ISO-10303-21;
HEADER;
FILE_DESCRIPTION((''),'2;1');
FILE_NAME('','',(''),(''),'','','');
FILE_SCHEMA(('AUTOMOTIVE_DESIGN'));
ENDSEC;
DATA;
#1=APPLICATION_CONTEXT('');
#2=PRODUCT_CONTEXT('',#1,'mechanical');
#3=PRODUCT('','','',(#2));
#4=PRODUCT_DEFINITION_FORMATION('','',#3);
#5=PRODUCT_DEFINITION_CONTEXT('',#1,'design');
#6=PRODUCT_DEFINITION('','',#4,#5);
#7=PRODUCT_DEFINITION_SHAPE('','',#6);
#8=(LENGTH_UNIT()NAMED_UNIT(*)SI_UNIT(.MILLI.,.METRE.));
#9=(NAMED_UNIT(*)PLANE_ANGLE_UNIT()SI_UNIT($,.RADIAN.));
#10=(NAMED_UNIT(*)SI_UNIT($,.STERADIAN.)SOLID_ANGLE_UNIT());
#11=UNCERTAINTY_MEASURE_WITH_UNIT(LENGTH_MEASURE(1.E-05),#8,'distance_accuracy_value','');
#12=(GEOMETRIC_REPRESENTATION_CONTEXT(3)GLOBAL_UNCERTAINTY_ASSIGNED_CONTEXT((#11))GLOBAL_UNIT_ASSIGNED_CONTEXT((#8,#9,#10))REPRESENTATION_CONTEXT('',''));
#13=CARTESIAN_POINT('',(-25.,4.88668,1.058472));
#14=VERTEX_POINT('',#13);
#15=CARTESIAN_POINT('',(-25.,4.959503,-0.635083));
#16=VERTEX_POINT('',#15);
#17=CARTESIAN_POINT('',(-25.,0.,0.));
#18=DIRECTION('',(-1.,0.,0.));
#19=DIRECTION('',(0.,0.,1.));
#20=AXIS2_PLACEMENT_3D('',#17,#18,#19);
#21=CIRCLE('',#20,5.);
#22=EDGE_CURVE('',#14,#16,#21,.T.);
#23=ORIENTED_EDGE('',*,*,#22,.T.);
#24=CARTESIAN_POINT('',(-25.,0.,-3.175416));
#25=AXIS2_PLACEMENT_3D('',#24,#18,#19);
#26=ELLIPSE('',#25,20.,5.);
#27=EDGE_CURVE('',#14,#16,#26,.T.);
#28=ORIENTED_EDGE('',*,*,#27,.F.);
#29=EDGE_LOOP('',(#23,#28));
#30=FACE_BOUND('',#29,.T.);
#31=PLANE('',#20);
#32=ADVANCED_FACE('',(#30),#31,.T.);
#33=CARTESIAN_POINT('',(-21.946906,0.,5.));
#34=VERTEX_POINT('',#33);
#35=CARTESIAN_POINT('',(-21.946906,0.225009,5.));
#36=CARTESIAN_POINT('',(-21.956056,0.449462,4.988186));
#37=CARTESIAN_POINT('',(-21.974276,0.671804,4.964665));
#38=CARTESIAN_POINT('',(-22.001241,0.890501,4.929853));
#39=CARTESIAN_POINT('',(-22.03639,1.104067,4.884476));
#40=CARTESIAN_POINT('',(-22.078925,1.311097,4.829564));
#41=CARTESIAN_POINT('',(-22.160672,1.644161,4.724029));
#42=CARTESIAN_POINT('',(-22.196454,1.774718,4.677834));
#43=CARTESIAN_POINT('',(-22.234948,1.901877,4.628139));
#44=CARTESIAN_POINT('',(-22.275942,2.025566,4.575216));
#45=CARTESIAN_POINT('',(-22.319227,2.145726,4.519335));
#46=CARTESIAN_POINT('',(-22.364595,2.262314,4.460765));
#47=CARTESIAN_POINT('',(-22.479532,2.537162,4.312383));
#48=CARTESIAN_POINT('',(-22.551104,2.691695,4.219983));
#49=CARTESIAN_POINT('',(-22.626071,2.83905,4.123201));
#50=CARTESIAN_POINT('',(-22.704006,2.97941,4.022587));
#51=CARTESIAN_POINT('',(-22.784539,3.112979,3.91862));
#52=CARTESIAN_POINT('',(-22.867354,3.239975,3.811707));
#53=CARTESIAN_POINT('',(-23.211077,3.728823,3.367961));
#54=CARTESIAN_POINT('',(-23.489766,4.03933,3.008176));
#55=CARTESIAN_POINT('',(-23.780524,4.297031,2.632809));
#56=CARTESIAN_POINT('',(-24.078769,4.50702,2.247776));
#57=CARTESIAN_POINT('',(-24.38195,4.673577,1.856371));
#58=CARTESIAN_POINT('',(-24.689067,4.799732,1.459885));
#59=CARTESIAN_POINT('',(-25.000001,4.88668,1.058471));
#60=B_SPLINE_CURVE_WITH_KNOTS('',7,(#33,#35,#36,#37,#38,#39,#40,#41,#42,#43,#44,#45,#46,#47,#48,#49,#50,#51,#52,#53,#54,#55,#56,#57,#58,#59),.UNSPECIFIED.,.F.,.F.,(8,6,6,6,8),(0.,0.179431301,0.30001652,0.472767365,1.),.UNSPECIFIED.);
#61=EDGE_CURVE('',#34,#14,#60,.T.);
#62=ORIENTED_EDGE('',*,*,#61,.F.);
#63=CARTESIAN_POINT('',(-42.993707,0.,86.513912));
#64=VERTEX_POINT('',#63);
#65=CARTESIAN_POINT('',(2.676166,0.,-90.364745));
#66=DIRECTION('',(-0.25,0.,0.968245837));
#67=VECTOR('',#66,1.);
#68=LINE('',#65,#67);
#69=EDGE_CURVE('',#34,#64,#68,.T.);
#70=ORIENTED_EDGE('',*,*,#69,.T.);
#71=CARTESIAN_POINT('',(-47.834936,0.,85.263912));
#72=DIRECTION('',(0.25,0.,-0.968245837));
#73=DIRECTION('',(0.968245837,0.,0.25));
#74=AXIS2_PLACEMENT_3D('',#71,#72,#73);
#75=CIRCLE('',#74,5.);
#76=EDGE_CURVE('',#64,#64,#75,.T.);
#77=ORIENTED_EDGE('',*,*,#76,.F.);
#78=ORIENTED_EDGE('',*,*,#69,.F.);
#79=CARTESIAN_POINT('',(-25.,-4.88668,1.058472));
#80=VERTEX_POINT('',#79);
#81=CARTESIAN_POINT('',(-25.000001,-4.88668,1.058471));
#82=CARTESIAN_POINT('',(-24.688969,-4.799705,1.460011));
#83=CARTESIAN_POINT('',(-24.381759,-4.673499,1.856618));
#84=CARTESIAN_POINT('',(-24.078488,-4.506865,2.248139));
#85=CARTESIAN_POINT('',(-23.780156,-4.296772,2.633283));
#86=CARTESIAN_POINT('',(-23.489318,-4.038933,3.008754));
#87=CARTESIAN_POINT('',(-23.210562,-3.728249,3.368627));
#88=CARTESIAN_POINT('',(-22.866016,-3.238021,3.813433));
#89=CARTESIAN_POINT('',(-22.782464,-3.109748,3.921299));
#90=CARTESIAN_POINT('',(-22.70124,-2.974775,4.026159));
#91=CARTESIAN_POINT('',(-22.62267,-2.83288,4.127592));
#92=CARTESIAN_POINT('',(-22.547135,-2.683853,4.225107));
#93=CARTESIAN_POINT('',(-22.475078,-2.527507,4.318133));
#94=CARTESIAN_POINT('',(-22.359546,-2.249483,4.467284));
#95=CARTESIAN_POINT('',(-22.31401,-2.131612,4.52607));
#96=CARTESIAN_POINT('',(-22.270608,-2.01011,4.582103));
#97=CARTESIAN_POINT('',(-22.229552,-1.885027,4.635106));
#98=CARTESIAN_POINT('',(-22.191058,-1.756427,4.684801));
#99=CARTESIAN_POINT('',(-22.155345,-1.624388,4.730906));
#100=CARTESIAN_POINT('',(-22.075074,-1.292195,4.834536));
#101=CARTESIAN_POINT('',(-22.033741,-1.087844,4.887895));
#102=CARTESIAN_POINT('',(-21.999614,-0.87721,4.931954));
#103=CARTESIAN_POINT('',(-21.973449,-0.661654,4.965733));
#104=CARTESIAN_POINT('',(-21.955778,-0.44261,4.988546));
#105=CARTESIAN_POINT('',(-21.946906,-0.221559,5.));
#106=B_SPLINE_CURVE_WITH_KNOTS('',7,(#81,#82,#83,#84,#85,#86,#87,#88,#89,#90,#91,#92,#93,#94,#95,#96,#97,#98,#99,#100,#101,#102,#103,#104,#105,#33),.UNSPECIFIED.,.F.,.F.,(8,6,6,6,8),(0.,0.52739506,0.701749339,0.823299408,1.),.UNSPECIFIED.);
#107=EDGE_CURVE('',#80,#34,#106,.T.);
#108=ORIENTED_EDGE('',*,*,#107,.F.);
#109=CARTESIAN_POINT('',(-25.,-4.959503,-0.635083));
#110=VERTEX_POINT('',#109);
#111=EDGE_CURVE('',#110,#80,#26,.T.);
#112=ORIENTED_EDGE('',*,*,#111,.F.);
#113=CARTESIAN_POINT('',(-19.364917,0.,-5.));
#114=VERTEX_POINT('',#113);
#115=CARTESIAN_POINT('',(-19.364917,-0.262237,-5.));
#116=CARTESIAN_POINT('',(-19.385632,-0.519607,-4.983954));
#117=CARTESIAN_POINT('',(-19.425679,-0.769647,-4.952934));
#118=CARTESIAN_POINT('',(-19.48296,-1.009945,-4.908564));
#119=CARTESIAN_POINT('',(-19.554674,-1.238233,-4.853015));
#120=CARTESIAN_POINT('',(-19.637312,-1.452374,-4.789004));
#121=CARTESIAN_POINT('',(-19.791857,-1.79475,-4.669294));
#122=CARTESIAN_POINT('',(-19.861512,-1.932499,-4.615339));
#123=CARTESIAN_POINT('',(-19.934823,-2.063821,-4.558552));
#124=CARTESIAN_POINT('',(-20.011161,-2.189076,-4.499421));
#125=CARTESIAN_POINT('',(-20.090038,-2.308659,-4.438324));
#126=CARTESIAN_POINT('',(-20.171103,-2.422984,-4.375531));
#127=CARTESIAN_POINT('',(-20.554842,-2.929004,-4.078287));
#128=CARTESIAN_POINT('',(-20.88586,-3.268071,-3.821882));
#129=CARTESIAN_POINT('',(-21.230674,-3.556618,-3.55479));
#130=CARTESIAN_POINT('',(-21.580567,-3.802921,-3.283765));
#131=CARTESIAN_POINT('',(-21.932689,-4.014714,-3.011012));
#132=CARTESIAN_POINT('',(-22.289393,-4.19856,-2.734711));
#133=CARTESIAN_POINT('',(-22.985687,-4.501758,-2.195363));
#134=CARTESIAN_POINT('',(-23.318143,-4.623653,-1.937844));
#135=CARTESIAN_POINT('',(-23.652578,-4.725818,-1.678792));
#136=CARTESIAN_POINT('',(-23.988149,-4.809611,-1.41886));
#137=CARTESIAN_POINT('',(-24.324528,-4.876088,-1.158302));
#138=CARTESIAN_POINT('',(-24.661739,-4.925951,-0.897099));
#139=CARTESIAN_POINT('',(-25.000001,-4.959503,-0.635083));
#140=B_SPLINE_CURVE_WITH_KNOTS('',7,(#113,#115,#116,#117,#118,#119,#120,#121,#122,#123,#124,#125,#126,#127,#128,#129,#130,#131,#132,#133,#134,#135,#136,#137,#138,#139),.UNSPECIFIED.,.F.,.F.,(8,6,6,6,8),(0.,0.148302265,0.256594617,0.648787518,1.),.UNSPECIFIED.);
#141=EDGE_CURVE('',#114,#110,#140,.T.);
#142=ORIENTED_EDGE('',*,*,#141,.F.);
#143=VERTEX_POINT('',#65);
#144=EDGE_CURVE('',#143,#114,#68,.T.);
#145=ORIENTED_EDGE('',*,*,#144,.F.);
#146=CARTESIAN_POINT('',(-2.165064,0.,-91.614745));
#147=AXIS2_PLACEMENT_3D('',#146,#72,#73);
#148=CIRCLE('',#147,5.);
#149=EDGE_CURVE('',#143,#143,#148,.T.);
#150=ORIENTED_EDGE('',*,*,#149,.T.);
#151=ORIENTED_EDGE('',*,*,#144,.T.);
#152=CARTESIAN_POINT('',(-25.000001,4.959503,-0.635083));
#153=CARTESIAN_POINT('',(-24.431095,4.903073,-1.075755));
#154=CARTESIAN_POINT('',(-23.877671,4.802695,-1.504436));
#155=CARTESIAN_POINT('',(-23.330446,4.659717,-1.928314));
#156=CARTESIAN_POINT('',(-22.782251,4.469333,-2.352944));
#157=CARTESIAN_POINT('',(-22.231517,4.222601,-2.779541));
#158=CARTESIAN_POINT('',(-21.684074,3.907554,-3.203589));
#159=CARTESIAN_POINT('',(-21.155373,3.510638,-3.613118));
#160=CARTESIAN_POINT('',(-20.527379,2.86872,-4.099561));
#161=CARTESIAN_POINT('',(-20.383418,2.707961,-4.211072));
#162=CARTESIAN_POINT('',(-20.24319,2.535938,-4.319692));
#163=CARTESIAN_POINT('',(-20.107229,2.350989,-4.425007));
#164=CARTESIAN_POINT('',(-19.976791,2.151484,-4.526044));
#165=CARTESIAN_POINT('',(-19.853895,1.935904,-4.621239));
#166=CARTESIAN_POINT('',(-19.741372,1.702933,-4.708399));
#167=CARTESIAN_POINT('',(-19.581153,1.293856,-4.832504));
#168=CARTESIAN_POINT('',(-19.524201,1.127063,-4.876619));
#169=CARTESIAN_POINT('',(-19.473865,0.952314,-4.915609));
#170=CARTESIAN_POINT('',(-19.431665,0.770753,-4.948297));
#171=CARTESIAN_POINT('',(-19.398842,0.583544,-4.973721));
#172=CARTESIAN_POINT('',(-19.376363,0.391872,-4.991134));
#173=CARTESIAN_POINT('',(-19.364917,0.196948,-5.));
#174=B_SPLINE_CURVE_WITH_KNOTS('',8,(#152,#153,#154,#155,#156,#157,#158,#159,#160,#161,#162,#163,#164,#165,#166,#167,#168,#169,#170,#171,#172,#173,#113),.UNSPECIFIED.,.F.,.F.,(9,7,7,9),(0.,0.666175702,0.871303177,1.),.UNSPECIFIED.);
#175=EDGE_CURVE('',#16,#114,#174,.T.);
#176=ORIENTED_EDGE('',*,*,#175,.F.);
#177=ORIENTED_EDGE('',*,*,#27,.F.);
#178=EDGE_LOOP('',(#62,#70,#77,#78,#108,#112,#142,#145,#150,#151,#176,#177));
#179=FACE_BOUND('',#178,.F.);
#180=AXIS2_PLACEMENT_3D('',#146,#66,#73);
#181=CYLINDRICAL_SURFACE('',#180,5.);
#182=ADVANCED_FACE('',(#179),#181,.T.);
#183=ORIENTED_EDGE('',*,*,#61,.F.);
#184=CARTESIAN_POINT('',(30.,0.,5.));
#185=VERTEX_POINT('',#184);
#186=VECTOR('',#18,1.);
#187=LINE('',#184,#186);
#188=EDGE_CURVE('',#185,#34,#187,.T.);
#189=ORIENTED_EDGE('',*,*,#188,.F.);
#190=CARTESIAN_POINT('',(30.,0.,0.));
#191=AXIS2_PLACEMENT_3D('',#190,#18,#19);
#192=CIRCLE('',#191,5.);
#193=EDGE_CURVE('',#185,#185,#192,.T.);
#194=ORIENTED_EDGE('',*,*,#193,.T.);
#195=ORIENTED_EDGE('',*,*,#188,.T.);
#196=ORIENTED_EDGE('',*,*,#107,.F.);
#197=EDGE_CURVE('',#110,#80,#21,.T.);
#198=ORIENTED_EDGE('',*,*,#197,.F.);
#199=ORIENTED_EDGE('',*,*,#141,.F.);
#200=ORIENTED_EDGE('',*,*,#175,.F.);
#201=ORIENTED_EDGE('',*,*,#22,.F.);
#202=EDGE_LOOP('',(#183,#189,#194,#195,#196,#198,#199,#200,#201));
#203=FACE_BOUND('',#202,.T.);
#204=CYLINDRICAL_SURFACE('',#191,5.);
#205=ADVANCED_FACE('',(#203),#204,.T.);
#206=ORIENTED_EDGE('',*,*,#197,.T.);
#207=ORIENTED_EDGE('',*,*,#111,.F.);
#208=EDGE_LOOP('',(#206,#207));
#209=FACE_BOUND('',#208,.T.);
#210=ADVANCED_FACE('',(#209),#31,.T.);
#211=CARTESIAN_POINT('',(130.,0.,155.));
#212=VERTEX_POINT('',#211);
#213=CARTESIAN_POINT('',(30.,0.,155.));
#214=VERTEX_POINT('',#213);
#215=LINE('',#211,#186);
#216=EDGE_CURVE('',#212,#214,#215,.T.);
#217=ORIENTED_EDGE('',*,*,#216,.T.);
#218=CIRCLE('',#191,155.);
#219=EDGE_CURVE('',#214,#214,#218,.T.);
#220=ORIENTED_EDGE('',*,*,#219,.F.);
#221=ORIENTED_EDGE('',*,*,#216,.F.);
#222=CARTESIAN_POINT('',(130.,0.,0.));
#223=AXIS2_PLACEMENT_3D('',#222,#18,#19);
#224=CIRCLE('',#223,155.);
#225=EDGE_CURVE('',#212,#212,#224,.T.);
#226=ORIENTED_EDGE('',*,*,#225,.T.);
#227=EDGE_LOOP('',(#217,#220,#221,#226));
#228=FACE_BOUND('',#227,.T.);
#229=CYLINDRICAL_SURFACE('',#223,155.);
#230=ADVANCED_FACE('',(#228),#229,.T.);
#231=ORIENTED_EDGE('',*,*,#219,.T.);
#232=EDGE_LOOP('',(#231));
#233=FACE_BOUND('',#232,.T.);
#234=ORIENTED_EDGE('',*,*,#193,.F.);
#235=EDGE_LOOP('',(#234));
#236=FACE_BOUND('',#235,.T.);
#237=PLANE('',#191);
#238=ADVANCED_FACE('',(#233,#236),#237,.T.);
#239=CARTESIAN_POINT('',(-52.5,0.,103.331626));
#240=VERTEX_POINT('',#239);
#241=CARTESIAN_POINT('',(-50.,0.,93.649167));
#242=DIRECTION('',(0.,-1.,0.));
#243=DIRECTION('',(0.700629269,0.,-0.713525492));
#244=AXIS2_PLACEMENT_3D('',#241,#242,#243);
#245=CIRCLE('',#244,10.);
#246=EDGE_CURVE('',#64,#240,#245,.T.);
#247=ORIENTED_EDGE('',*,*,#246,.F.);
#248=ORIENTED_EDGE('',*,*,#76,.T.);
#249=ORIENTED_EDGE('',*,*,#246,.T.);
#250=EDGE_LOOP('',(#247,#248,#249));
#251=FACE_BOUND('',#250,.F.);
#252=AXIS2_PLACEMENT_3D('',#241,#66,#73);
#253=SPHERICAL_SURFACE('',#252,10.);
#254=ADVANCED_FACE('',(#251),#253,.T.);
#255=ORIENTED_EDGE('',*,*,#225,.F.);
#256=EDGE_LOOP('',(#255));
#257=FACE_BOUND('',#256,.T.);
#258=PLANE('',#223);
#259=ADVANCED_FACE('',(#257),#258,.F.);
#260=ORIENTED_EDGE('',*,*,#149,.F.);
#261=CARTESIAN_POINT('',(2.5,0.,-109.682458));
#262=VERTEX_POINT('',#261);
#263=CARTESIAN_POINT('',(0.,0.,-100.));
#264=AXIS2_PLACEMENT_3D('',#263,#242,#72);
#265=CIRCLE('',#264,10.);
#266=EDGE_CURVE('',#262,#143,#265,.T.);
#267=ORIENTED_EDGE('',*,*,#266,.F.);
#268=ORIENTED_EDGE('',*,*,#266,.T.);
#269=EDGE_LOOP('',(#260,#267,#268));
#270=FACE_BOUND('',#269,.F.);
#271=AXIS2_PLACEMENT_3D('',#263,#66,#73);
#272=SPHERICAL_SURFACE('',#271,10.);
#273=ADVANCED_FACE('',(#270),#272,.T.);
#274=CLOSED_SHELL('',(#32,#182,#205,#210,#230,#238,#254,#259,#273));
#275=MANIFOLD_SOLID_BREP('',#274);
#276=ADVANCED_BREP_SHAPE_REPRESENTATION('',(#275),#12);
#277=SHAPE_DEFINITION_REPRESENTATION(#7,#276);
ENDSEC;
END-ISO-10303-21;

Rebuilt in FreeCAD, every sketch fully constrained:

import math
import FreeCAD as App
import Part
import Sketcher
Q = App.Units.Quantity

doc = App.newDocument("Part")
body = doc.addObject("PartDesign::Body", "Body")

sketch1 = doc.addObject("Sketcher::SketchObject", "Sketch")
body.addObject(sketch1)
sketch1.AttachmentSupport = (doc.XZ_Plane, [""])
sketch1.MapMode = "FlatFace"
sketch1.addGeometry([
    Part.LineSegment(App.Vector(2.676166, -90.364745, 0), App.Vector(-42.993707, 86.513912, 0)),
    Part.ArcOfCircle(Part.Circle(App.Vector(-50, 93.649167, 0), App.Vector(0, 0, 1), 10), math.radians(-45.522488), math.radians(104.477512)),
    Part.LineSegment(App.Vector(-52.5, 103.331626, 0), App.Vector(2.5, -109.682458, 0)),
    Part.ArcOfCircle(Part.Circle(App.Vector(0, -100, 0), App.Vector(0, 0, 1), 10), math.radians(-75.522488), math.radians(74.477512)),
], False)
sketch1.addGeometry(Part.LineSegment(App.Vector(-52.5, 103.331626, 0), App.Vector(2.5, -109.682458, 0)), True)
sketch1.addConstraint([
    Sketcher.Constraint("Coincident", 0, 2, 1, 1),
    Sketcher.Constraint("Coincident", 1, 2, 2, 1),
    Sketcher.Constraint("Coincident", 2, 2, 3, 1),
    Sketcher.Constraint("Coincident", 3, 2, 0, 1),
    Sketcher.Constraint("Coincident", 4, 1, 1, 2),
    Sketcher.Constraint("Coincident", 4, 2, 2, 2),
    Sketcher.Constraint("Equal", 1, 3),
    Sketcher.Constraint("PointOnObject", 3, 3, -2),
    Sketcher.Constraint("Parallel", 0, 2),
    Sketcher.Constraint("Radius", 1, Q("10 mm")),
    Sketcher.Constraint("Distance", 2, Q("220 mm")),
    Sketcher.Constraint("DistanceX", 1, 3, -1, 1, Q("50 mm")),
    Sketcher.Constraint("DistanceY", 3, 3, -1, 1, Q("100 mm")),
    Sketcher.Constraint("DistanceX", 1, 2, 2, 2, Q("55 mm")),
    Sketcher.Constraint("DistanceX", 1, 2, -1, 1, Q("52.5 mm")),
    Sketcher.Constraint("Distance", 0, Q("182.679492 mm")),
])
revolution = doc.addObject("PartDesign::Revolution", "Revolution")
body.addObject(revolution)
revolution.Profile = sketch1
revolution.ReferenceAxis = (sketch1, ["Axis0"])
revolution.Angle = 360

sketch2 = doc.addObject("Sketcher::SketchObject", "Sketch001")
body.addObject(sketch2)
sketch2.AttachmentSupport = (doc.XZ_Plane, [""])
sketch2.MapMode = "FlatFace"
sketch2.addGeometry([
    Part.LineSegment(App.Vector(30, 5, 0), App.Vector(-25, 5, 0)),
    Part.LineSegment(App.Vector(-25, 5, 0), App.Vector(-25, 0, 0)),
    Part.LineSegment(App.Vector(-25, 0, 0), App.Vector(130, 0, 0)),
    Part.LineSegment(App.Vector(130, 0, 0), App.Vector(130, 155, 0)),
    Part.LineSegment(App.Vector(130, 155, 0), App.Vector(30, 155, 0)),
    Part.LineSegment(App.Vector(30, 155, 0), App.Vector(30, 5, 0)),
], False)
sketch2.addConstraint([
    Sketcher.Constraint("Coincident", 0, 2, 1, 1),
    Sketcher.Constraint("Coincident", 1, 2, 2, 1),
    Sketcher.Constraint("Coincident", 2, 2, 3, 1),
    Sketcher.Constraint("Coincident", 3, 2, 4, 1),
    Sketcher.Constraint("Coincident", 4, 2, 5, 1),
    Sketcher.Constraint("Coincident", 5, 2, 0, 1),
    Sketcher.Constraint("Horizontal", 0),
    Sketcher.Constraint("Vertical", 1),
    Sketcher.Constraint("Horizontal", 2),
    Sketcher.Constraint("Vertical", 3),
    Sketcher.Constraint("Horizontal", 4),
    Sketcher.Constraint("Vertical", 5),
    Sketcher.Constraint("PointOnObject", 1, 2, -1),
    Sketcher.Constraint("Equal", 2, 3),
    Sketcher.Constraint("DistanceX", 0, 2, 0, 1, Q("55 mm")),
    Sketcher.Constraint("DistanceX", 2, 1, 2, 2, Q("155 mm")),
    Sketcher.Constraint("DistanceY", 1, 2, 1, 1, Q("5 mm")),
    Sketcher.Constraint("DistanceX", 0, 2, -1, 1, Q("25 mm")),
])
revolution2 = doc.addObject("PartDesign::Revolution", "Revolution001")
body.addObject(revolution2)
revolution2.Profile = sketch2
revolution2.ReferenceAxis = (sketch2, ["H_Axis"])
revolution2.Angle = 360

doc.recompute()
